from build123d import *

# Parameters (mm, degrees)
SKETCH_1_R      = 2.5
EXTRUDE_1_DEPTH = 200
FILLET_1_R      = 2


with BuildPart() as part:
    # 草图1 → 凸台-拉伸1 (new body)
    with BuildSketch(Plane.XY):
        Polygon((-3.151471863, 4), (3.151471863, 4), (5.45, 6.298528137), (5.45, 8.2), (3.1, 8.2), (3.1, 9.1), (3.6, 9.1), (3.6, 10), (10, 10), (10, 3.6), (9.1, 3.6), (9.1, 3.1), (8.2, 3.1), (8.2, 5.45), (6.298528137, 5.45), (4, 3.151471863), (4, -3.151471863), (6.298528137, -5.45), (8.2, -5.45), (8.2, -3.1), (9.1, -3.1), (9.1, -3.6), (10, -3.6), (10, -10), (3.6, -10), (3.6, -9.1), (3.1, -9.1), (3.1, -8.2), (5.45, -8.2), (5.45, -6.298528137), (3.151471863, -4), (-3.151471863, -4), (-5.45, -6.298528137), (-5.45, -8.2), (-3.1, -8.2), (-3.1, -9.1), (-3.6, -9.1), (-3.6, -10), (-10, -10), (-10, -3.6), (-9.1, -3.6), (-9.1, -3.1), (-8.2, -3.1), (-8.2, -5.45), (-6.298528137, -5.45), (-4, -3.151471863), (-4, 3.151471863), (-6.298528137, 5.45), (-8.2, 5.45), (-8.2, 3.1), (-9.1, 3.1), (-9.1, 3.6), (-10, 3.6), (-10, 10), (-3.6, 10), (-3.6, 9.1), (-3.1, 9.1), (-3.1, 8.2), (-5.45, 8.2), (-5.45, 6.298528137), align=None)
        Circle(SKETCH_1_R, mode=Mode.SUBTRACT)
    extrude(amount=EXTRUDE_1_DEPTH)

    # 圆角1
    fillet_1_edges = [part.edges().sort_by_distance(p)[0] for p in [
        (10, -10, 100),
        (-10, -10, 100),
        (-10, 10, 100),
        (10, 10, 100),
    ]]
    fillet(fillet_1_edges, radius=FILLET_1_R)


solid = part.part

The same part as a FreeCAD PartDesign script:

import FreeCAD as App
import Part
import Sketcher

V = App.Vector


def edges_at(feature, points):
    """Names of the edges that pass closest to the given points."""
    edges = feature.Shape.Edges
    near = lambda p: min(range(len(edges)), key=lambda i: edges[i].distToShape(Part.Vertex(*p))[0])
    return sorted({f"Edge{near(p) + 1}" for p in points})

doc = App.newDocument("Part")
body = doc.addObject("PartDesign::Body", "Body")

sketch1 = body.newObject("Sketcher::SketchObject", "Sketch")
sketch1.AttachmentSupport = (doc.getObject("XY_Plane"), [""])
sketch1.MapMode = "FlatFace"
sketch1.addGeometry([
    Part.LineSegment(V(3.2, 4, 0), V(-3.2, 4, 0)),
    Part.LineSegment(V(-3.2, 4, 0), V(-5.5, 6.3, 0)),
    Part.LineSegment(V(-5.5, 6.3, 0), V(-5.5, 8.2, 0)),
    Part.LineSegment(V(-5.5, 8.2, 0), V(-3.1, 8.2, 0)),
    Part.LineSegment(V(-3.1, 8.2, 0), V(-3.1, 9.1, 0)),
    Part.LineSegment(V(-3.1, 9.1, 0), V(-3.6, 9.1, 0)),
    Part.LineSegment(V(-3.6, 9.1, 0), V(-3.6, 10, 0)),
    Part.LineSegment(V(-3.6, 10, 0), V(-10, 10, 0)),
    Part.LineSegment(V(-10, 10, 0), V(-10, 3.6, 0)),
    Part.LineSegment(V(-10, 3.6, 0), V(-9.1, 3.6, 0)),
    Part.LineSegment(V(-9.1, 3.6, 0), V(-9.1, 3.1, 0)),
    Part.LineSegment(V(-9.1, 3.1, 0), V(-8.2, 3.1, 0)),
    Part.LineSegment(V(-8.2, 3.1, 0), V(-8.2, 5.5, 0)),
    Part.LineSegment(V(-8.2, 5.5, 0), V(-6.3, 5.5, 0)),
    Part.LineSegment(V(-6.3, 5.5, 0), V(-4, 3.2, 0)),
    Part.LineSegment(V(-4, 3.2, 0), V(-4, -3.2, 0)),
    Part.LineSegment(V(-4, -3.2, 0), V(-6.3, -5.5, 0)),
    Part.LineSegment(V(-6.3, -5.5, 0), V(-8.2, -5.5, 0)),
    Part.LineSegment(V(-8.2, -5.5, 0), V(-8.2, -3.1, 0)),
    Part.LineSegment(V(-8.2, -3.1, 0), V(-9.1, -3.1, 0)),
    Part.LineSegment(V(-9.1, -3.1, 0), V(-9.1, -3.6, 0)),
    Part.LineSegment(V(-9.1, -3.6, 0), V(-10, -3.6, 0)),
    Part.LineSegment(V(-10, -3.6, 0), V(-10, -10, 0)),
    Part.LineSegment(V(-10, -10, 0), V(-3.6, -10, 0)),
    Part.LineSegment(V(-3.6, -10, 0), V(-3.6, -9.1, 0)),
    Part.LineSegment(V(-3.6, -9.1, 0), V(-3.1, -9.1, 0)),
    Part.LineSegment(V(-3.1, -9.1, 0), V(-3.1, -8.2, 0)),
    Part.LineSegment(V(-3.1, -8.2, 0), V(-5.5, -8.2, 0)),
    Part.LineSegment(V(-5.5, -8.2, 0), V(-5.5, -6.3, 0)),
    Part.LineSegment(V(-5.5, -6.3, 0), V(-3.2, -4, 0)),
    Part.LineSegment(V(-3.2, -4, 0), V(3.2, -4, 0)),
    Part.LineSegment(V(3.2, -4, 0), V(5.5, -6.3, 0)),
    Part.LineSegment(V(5.5, -6.3, 0), V(5.5, -8.2, 0)),
    Part.LineSegment(V(5.5, -8.2, 0), V(3.1, -8.2, 0)),
    Part.LineSegment(V(3.1, -8.2, 0), V(3.1, -9.1, 0)),
    Part.LineSegment(V(3.1, -9.1, 0), V(3.6, -9.1, 0)),
    Part.LineSegment(V(3.6, -9.1, 0), V(3.6, -10, 0)),
    Part.LineSegment(V(3.6, -10, 0), V(10, -10, 0)),
    Part.LineSegment(V(10, -10, 0), V(10, -3.6, 0)),
    Part.LineSegment(V(10, -3.6, 0), V(9.1, -3.6, 0)),
    Part.LineSegment(V(9.1, -3.6, 0), V(9.1, -3.1, 0)),
    Part.LineSegment(V(9.1, -3.1, 0), V(8.2, -3.1, 0)),
    Part.LineSegment(V(8.2, -3.1, 0), V(8.2, -5.5, 0)),
    Part.LineSegment(V(8.2, -5.5, 0), V(6.3, -5.5, 0)),
    Part.LineSegment(V(6.3, -5.5, 0), V(4, -3.2, 0)),
    Part.LineSegment(V(4, -3.2, 0), V(4, 3.2, 0)),
    Part.LineSegment(V(4, 3.2, 0), V(6.3, 5.5, 0)),
    Part.LineSegment(V(6.3, 5.5, 0), V(8.2, 5.5, 0)),
    Part.LineSegment(V(8.2, 5.5, 0), V(8.2, 3.1, 0)),
    Part.LineSegment(V(8.2, 3.1, 0), V(9.1, 3.1, 0)),
    Part.LineSegment(V(9.1, 3.1, 0), V(9.1, 3.6, 0)),
    Part.LineSegment(V(9.1, 3.6, 0), V(10, 3.6, 0)),
    Part.LineSegment(V(10, 3.6, 0), V(10, 10, 0)),
    Part.LineSegment(V(10, 10, 0), V(3.6, 10, 0)),
    Part.LineSegment(V(3.6, 10, 0), V(3.6, 9.1, 0)),
    Part.LineSegment(V(3.6, 9.1, 0), V(3.1, 9.1, 0)),
    Part.LineSegment(V(3.1, 9.1, 0), V(3.1, 8.2, 0)),
    Part.LineSegment(V(3.1, 8.2, 0), V(5.5, 8.2, 0)),
    Part.LineSegment(V(5.5, 8.2, 0), V(5.5, 6.3, 0)),
    Part.LineSegment(V(5.5, 6.3, 0), V(3.2, 4, 0)),
    Part.Circle(V(0, 0, 0), V(0, 0, 1), 2.5),
], False)
sketch1.addConstraint([
    Sketcher.Constraint("Coincident", 0, 2, 1, 1),
    Sketcher.Constraint("Coincident", 1, 2, 2, 1),
    Sketcher.Constraint("Coincident", 2, 2, 3, 1),
    Sketcher.Constraint("Coincident", 3, 2, 4, 1),
    Sketcher.Constraint("Coincident", 4, 2, 5, 1),
    Sketcher.Constraint("Coincident", 5, 2, 6, 1),
    Sketcher.Constraint("Coincident", 6, 2, 7, 1),
    Sketcher.Constraint("Coincident", 7, 2, 8, 1),
    Sketcher.Constraint("Coincident", 8, 2, 9, 1),
    Sketcher.Constraint("Coincident", 9, 2, 10, 1),
    Sketcher.Constraint("Coincident", 10, 2, 11, 1),
    Sketcher.Constraint("Coincident", 11, 2, 12, 1),
    Sketcher.Constraint("Coincident", 12, 2, 13, 1),
    Sketcher.Constraint("Coincident", 13, 2, 14, 1),
    Sketcher.Constraint("Coincident", 14, 2, 15, 1),
    Sketcher.Constraint("Coincident", 15, 2, 16, 1),
    Sketcher.Constraint("Coincident", 16, 2, 17, 1),
    Sketcher.Constraint("Coincident", 17, 2, 18, 1),
    Sketcher.Constraint("Coincident", 18, 2, 19, 1),
    Sketcher.Constraint("Coincident", 19, 2, 20, 1),
    Sketcher.Constraint("Coincident", 20, 2, 21, 1),
    Sketcher.Constraint("Coincident", 21, 2, 22, 1),
    Sketcher.Constraint("Coincident", 22, 2, 23, 1),
    Sketcher.Constraint("Coincident", 23, 2, 24, 1),
    Sketcher.Constraint("Coincident", 24, 2, 25, 1),
    Sketcher.Constraint("Coincident", 25, 2, 26, 1),
    Sketcher.Constraint("Coincident", 26, 2, 27, 1),
    Sketcher.Constraint("Coincident", 27, 2, 28, 1),
    Sketcher.Constraint("Coincident", 28, 2, 29, 1),
    Sketcher.Constraint("Coincident", 29, 2, 30, 1),
    Sketcher.Constraint("Coincident", 30, 2, 31, 1),
    Sketcher.Constraint("Coincident", 31, 2, 32, 1),
    Sketcher.Constraint("Coincident", 32, 2, 33, 1),
    Sketcher.Constraint("Coincident", 33, 2, 34, 1),
    Sketcher.Constraint("Coincident", 34, 2, 35, 1),
    Sketcher.Constraint("Coincident", 35, 2, 36, 1),
    Sketcher.Constraint("Coincident", 36, 2, 37, 1),
    Sketcher.Constraint("Coincident", 37, 2, 38, 1),
    Sketcher.Constraint("Coincident", 38, 2, 39, 1),
    Sketcher.Constraint("Coincident", 39, 2, 40, 1),
    Sketcher.Constraint("Coincident", 40, 2, 41, 1),
    Sketcher.Constraint("Coincident", 41, 2, 42, 1),
    Sketcher.Constraint("Coincident", 42, 2, 43, 1),
    Sketcher.Constraint("Coincident", 43, 2, 44, 1),
    Sketcher.Constraint("Coincident", 44, 2, 45, 1),
    Sketcher.Constraint("Coincident", 45, 2, 46, 1),
    Sketcher.Constraint("Coincident", 46, 2, 47, 1),
    Sketcher.Constraint("Coincident", 47, 2, 48, 1),
    Sketcher.Constraint("Coincident", 48, 2, 49, 1),
    Sketcher.Constraint("Coincident", 49, 2, 50, 1),
    Sketcher.Constraint("Coincident", 50, 2, 51, 1),
    Sketcher.Constraint("Coincident", 51, 2, 52, 1),
    Sketcher.Constraint("Coincident", 52, 2, 53, 1),
    Sketcher.Constraint("Coincident", 53, 2, 54, 1),
    Sketcher.Constraint("Coincident", 54, 2, 55, 1),
    Sketcher.Constraint("Coincident", 55, 2, 56, 1),
    Sketcher.Constraint("Coincident", 56, 2, 57, 1),
    Sketcher.Constraint("Coincident", 57, 2, 58, 1),
    Sketcher.Constraint("Coincident", 58, 2, 59, 1),
    Sketcher.Constraint("Coincident", 59, 2, 0, 1),
    Sketcher.Constraint("Horizontal", 0),
    Sketcher.Constraint("Vertical", 2),
    Sketcher.Constraint("Horizontal", 3),
    Sketcher.Constraint("Vertical", 4),
    Sketcher.Constraint("Horizontal", 5),
    Sketcher.Constraint("Vertical", 6),
    Sketcher.Constraint("Horizontal", 7),
    Sketcher.Constraint("Vertical", 8),
    Sketcher.Constraint("Horizontal", 9),
    Sketcher.Constraint("Vertical", 10),
    Sketcher.Constraint("Horizontal", 11),
    Sketcher.Constraint("Vertical", 12),
    Sketcher.Constraint("Horizontal", 13),
    Sketcher.Constraint("Vertical", 15),
    Sketcher.Constraint("Horizontal", 17),
    Sketcher.Constraint("Vertical", 18),
    Sketcher.Constraint("Horizontal", 19),
    Sketcher.Constraint("Vertical", 20),
    Sketcher.Constraint("Horizontal", 21),
    Sketcher.Constraint("Vertical", 22),
    Sketcher.Constraint("Horizontal", 23),
    Sketcher.Constraint("Vertical", 24),
    Sketcher.Constraint("Horizontal", 25),
    Sketcher.Constraint("Vertical", 26),
    Sketcher.Constraint("Horizontal", 27),
    Sketcher.Constraint("Vertical", 28),
    Sketcher.Constraint("Horizontal", 30),
    Sketcher.Constraint("Vertical", 32),
    Sketcher.Constraint("Horizontal", 33),
    Sketcher.Constraint("Vertical", 34),
    Sketcher.Constraint("Horizontal", 35),
    Sketcher.Constraint("Vertical", 36),
    Sketcher.Constraint("Horizontal", 37),
    Sketcher.Constraint("Vertical", 38),
    Sketcher.Constraint("Horizontal", 39),
    Sketcher.Constraint("Vertical", 40),
    Sketcher.Constraint("Horizontal", 41),
    Sketcher.Constraint("Vertical", 42),
    Sketcher.Constraint("Horizontal", 43),
    Sketcher.Constraint("Vertical", 45),
    Sketcher.Constraint("Horizontal", 47),
    Sketcher.Constraint("Vertical", 48),
    Sketcher.Constraint("Horizontal", 49),
    Sketcher.Constraint("Vertical", 50),
    Sketcher.Constraint("Horizontal", 51),
    Sketcher.Constraint("Vertical", 52),
    Sketcher.Constraint("Horizontal", 53),
    Sketcher.Constraint("Vertical", 54),
    Sketcher.Constraint("Horizontal", 55),
    Sketcher.Constraint("Vertical", 56),
    Sketcher.Constraint("Horizontal", 57),
    Sketcher.Constraint("Vertical", 58),
    Sketcher.Constraint("Coincident", 60, 3, -1, 1),
    Sketcher.Constraint("Symmetric", 0, 2, 30, 2, -1, 1),
    Sketcher.Constraint("Symmetric", 1, 2, 31, 2, -1, 1),
    Sketcher.Constraint("Symmetric", 3, 2, 33, 2, -1, 1),
    Sketcher.Constraint("Symmetric", 5, 2, 35, 2, -1, 1),
    Sketcher.Constraint("Symmetric", 7, 2, 37, 2, -1, 1),
    Sketcher.Constraint("Symmetric", 9, 2, 39, 2, -1, 1),
    Sketcher.Constraint("Symmetric", 11, 2, 41, 2, -1, 1),
    Sketcher.Constraint("Symmetric", 13, 2, 43, 2, -1, 1),
    Sketcher.Constraint("Symmetric", 14, 2, 44, 2, -1, 1),
    Sketcher.Constraint("Symmetric", 16, 2, 46, 2, -1, 1),
    Sketcher.Constraint("Symmetric", 18, 2, 48, 2, -1, 1),
    Sketcher.Constraint("Symmetric", 20, 2, 50, 2, -1, 1),
    Sketcher.Constraint("Symmetric", 22, 2, 52, 2, -1, 1),
    Sketcher.Constraint("Symmetric", 24, 2, 54, 2, -1, 1),
    Sketcher.Constraint("Symmetric", 26, 2, 56, 2, -1, 1),
    Sketcher.Constraint("Symmetric", 28, 2, 58, 2, -1, 1),
    Sketcher.Constraint("Symmetric", 28, 2, 31, 2, -2),
    Sketcher.Constraint("Symmetric", 26, 2, 33, 2, -2),
    Sketcher.Constraint("Symmetric", 24, 2, 35, 2, -2),
    Sketcher.Constraint("Symmetric", 22, 2, 37, 2, -2),
    Sketcher.Constraint("Symmetric", 20, 2, 39, 2, -2),
    Sketcher.Constraint("Symmetric", 18, 2, 41, 2, -2),
    Sketcher.Constraint("Symmetric", 16, 2, 43, 2, -2),
    Sketcher.Constraint("Parallel", 1, 14),
    Sketcher.Constraint("Perpendicular", 14, 16),
    Sketcher.Constraint("Parallel", 16, 29),
    Sketcher.Constraint("Perpendicular", 44, 46),
    Sketcher.Constraint("Parallel", 46, 59),
    Sketcher.Constraint("Horizontal", 15, 2, 44, 2),
    Sketcher.Constraint("Equal", 9, 11),
    Sketcher.Constraint("Equal", 47, 2),
    Sketcher.Constraint("Equal", 51, 4),
    Sketcher.Constraint("Equal", 4, 6),
    Sketcher.Constraint("Equal", 53, 8),
    Sketcher.Constraint("Equal", 55, 10),
    Sketcher.Constraint("Equal", 57, 12),
    Sketcher.Constraint("Equal", 30, 15),
    Sketcher.Constraint("Equal", 1, 14),
    Sketcher.Constraint("Diameter", 60, 5.0),
    Sketcher.Constraint("DistanceX", 5, 2, 5, 1, 0.5),
    Sketcher.Constraint("DistanceX", 7, 2, 7, 1, 6.4),
    Sketcher.Constraint("DistanceX", 9, 1, 9, 2, 0.9),
    Sketcher.Constraint("DistanceY", -1, 1, 0, 2, 4.0),
    Sketcher.Constraint("DistanceY", -1, 1, 6, 2, 10.0),
    Sketcher.Constraint("DistanceX", 3, 1, 3, 2, 2.35),
    Sketcher.Constraint("DistanceX", 13, 1, 13, 2, 1.901472),
])
pad1 = body.newObject("PartDesign::Pad", "Pad")
pad1.Profile = sketch1
pad1.Length = 200
doc.recompute()

fillet = body.newObject("PartDesign::Fillet", "Fillet")
fillet.Base = (pad1, edges_at(pad1, [
    (10, -10, 100),
    (-10, -10, 100),
    (-10, 10, 100),
    (10, 10, 100),
]))
fillet.Radius = 2

doc.recompute()
